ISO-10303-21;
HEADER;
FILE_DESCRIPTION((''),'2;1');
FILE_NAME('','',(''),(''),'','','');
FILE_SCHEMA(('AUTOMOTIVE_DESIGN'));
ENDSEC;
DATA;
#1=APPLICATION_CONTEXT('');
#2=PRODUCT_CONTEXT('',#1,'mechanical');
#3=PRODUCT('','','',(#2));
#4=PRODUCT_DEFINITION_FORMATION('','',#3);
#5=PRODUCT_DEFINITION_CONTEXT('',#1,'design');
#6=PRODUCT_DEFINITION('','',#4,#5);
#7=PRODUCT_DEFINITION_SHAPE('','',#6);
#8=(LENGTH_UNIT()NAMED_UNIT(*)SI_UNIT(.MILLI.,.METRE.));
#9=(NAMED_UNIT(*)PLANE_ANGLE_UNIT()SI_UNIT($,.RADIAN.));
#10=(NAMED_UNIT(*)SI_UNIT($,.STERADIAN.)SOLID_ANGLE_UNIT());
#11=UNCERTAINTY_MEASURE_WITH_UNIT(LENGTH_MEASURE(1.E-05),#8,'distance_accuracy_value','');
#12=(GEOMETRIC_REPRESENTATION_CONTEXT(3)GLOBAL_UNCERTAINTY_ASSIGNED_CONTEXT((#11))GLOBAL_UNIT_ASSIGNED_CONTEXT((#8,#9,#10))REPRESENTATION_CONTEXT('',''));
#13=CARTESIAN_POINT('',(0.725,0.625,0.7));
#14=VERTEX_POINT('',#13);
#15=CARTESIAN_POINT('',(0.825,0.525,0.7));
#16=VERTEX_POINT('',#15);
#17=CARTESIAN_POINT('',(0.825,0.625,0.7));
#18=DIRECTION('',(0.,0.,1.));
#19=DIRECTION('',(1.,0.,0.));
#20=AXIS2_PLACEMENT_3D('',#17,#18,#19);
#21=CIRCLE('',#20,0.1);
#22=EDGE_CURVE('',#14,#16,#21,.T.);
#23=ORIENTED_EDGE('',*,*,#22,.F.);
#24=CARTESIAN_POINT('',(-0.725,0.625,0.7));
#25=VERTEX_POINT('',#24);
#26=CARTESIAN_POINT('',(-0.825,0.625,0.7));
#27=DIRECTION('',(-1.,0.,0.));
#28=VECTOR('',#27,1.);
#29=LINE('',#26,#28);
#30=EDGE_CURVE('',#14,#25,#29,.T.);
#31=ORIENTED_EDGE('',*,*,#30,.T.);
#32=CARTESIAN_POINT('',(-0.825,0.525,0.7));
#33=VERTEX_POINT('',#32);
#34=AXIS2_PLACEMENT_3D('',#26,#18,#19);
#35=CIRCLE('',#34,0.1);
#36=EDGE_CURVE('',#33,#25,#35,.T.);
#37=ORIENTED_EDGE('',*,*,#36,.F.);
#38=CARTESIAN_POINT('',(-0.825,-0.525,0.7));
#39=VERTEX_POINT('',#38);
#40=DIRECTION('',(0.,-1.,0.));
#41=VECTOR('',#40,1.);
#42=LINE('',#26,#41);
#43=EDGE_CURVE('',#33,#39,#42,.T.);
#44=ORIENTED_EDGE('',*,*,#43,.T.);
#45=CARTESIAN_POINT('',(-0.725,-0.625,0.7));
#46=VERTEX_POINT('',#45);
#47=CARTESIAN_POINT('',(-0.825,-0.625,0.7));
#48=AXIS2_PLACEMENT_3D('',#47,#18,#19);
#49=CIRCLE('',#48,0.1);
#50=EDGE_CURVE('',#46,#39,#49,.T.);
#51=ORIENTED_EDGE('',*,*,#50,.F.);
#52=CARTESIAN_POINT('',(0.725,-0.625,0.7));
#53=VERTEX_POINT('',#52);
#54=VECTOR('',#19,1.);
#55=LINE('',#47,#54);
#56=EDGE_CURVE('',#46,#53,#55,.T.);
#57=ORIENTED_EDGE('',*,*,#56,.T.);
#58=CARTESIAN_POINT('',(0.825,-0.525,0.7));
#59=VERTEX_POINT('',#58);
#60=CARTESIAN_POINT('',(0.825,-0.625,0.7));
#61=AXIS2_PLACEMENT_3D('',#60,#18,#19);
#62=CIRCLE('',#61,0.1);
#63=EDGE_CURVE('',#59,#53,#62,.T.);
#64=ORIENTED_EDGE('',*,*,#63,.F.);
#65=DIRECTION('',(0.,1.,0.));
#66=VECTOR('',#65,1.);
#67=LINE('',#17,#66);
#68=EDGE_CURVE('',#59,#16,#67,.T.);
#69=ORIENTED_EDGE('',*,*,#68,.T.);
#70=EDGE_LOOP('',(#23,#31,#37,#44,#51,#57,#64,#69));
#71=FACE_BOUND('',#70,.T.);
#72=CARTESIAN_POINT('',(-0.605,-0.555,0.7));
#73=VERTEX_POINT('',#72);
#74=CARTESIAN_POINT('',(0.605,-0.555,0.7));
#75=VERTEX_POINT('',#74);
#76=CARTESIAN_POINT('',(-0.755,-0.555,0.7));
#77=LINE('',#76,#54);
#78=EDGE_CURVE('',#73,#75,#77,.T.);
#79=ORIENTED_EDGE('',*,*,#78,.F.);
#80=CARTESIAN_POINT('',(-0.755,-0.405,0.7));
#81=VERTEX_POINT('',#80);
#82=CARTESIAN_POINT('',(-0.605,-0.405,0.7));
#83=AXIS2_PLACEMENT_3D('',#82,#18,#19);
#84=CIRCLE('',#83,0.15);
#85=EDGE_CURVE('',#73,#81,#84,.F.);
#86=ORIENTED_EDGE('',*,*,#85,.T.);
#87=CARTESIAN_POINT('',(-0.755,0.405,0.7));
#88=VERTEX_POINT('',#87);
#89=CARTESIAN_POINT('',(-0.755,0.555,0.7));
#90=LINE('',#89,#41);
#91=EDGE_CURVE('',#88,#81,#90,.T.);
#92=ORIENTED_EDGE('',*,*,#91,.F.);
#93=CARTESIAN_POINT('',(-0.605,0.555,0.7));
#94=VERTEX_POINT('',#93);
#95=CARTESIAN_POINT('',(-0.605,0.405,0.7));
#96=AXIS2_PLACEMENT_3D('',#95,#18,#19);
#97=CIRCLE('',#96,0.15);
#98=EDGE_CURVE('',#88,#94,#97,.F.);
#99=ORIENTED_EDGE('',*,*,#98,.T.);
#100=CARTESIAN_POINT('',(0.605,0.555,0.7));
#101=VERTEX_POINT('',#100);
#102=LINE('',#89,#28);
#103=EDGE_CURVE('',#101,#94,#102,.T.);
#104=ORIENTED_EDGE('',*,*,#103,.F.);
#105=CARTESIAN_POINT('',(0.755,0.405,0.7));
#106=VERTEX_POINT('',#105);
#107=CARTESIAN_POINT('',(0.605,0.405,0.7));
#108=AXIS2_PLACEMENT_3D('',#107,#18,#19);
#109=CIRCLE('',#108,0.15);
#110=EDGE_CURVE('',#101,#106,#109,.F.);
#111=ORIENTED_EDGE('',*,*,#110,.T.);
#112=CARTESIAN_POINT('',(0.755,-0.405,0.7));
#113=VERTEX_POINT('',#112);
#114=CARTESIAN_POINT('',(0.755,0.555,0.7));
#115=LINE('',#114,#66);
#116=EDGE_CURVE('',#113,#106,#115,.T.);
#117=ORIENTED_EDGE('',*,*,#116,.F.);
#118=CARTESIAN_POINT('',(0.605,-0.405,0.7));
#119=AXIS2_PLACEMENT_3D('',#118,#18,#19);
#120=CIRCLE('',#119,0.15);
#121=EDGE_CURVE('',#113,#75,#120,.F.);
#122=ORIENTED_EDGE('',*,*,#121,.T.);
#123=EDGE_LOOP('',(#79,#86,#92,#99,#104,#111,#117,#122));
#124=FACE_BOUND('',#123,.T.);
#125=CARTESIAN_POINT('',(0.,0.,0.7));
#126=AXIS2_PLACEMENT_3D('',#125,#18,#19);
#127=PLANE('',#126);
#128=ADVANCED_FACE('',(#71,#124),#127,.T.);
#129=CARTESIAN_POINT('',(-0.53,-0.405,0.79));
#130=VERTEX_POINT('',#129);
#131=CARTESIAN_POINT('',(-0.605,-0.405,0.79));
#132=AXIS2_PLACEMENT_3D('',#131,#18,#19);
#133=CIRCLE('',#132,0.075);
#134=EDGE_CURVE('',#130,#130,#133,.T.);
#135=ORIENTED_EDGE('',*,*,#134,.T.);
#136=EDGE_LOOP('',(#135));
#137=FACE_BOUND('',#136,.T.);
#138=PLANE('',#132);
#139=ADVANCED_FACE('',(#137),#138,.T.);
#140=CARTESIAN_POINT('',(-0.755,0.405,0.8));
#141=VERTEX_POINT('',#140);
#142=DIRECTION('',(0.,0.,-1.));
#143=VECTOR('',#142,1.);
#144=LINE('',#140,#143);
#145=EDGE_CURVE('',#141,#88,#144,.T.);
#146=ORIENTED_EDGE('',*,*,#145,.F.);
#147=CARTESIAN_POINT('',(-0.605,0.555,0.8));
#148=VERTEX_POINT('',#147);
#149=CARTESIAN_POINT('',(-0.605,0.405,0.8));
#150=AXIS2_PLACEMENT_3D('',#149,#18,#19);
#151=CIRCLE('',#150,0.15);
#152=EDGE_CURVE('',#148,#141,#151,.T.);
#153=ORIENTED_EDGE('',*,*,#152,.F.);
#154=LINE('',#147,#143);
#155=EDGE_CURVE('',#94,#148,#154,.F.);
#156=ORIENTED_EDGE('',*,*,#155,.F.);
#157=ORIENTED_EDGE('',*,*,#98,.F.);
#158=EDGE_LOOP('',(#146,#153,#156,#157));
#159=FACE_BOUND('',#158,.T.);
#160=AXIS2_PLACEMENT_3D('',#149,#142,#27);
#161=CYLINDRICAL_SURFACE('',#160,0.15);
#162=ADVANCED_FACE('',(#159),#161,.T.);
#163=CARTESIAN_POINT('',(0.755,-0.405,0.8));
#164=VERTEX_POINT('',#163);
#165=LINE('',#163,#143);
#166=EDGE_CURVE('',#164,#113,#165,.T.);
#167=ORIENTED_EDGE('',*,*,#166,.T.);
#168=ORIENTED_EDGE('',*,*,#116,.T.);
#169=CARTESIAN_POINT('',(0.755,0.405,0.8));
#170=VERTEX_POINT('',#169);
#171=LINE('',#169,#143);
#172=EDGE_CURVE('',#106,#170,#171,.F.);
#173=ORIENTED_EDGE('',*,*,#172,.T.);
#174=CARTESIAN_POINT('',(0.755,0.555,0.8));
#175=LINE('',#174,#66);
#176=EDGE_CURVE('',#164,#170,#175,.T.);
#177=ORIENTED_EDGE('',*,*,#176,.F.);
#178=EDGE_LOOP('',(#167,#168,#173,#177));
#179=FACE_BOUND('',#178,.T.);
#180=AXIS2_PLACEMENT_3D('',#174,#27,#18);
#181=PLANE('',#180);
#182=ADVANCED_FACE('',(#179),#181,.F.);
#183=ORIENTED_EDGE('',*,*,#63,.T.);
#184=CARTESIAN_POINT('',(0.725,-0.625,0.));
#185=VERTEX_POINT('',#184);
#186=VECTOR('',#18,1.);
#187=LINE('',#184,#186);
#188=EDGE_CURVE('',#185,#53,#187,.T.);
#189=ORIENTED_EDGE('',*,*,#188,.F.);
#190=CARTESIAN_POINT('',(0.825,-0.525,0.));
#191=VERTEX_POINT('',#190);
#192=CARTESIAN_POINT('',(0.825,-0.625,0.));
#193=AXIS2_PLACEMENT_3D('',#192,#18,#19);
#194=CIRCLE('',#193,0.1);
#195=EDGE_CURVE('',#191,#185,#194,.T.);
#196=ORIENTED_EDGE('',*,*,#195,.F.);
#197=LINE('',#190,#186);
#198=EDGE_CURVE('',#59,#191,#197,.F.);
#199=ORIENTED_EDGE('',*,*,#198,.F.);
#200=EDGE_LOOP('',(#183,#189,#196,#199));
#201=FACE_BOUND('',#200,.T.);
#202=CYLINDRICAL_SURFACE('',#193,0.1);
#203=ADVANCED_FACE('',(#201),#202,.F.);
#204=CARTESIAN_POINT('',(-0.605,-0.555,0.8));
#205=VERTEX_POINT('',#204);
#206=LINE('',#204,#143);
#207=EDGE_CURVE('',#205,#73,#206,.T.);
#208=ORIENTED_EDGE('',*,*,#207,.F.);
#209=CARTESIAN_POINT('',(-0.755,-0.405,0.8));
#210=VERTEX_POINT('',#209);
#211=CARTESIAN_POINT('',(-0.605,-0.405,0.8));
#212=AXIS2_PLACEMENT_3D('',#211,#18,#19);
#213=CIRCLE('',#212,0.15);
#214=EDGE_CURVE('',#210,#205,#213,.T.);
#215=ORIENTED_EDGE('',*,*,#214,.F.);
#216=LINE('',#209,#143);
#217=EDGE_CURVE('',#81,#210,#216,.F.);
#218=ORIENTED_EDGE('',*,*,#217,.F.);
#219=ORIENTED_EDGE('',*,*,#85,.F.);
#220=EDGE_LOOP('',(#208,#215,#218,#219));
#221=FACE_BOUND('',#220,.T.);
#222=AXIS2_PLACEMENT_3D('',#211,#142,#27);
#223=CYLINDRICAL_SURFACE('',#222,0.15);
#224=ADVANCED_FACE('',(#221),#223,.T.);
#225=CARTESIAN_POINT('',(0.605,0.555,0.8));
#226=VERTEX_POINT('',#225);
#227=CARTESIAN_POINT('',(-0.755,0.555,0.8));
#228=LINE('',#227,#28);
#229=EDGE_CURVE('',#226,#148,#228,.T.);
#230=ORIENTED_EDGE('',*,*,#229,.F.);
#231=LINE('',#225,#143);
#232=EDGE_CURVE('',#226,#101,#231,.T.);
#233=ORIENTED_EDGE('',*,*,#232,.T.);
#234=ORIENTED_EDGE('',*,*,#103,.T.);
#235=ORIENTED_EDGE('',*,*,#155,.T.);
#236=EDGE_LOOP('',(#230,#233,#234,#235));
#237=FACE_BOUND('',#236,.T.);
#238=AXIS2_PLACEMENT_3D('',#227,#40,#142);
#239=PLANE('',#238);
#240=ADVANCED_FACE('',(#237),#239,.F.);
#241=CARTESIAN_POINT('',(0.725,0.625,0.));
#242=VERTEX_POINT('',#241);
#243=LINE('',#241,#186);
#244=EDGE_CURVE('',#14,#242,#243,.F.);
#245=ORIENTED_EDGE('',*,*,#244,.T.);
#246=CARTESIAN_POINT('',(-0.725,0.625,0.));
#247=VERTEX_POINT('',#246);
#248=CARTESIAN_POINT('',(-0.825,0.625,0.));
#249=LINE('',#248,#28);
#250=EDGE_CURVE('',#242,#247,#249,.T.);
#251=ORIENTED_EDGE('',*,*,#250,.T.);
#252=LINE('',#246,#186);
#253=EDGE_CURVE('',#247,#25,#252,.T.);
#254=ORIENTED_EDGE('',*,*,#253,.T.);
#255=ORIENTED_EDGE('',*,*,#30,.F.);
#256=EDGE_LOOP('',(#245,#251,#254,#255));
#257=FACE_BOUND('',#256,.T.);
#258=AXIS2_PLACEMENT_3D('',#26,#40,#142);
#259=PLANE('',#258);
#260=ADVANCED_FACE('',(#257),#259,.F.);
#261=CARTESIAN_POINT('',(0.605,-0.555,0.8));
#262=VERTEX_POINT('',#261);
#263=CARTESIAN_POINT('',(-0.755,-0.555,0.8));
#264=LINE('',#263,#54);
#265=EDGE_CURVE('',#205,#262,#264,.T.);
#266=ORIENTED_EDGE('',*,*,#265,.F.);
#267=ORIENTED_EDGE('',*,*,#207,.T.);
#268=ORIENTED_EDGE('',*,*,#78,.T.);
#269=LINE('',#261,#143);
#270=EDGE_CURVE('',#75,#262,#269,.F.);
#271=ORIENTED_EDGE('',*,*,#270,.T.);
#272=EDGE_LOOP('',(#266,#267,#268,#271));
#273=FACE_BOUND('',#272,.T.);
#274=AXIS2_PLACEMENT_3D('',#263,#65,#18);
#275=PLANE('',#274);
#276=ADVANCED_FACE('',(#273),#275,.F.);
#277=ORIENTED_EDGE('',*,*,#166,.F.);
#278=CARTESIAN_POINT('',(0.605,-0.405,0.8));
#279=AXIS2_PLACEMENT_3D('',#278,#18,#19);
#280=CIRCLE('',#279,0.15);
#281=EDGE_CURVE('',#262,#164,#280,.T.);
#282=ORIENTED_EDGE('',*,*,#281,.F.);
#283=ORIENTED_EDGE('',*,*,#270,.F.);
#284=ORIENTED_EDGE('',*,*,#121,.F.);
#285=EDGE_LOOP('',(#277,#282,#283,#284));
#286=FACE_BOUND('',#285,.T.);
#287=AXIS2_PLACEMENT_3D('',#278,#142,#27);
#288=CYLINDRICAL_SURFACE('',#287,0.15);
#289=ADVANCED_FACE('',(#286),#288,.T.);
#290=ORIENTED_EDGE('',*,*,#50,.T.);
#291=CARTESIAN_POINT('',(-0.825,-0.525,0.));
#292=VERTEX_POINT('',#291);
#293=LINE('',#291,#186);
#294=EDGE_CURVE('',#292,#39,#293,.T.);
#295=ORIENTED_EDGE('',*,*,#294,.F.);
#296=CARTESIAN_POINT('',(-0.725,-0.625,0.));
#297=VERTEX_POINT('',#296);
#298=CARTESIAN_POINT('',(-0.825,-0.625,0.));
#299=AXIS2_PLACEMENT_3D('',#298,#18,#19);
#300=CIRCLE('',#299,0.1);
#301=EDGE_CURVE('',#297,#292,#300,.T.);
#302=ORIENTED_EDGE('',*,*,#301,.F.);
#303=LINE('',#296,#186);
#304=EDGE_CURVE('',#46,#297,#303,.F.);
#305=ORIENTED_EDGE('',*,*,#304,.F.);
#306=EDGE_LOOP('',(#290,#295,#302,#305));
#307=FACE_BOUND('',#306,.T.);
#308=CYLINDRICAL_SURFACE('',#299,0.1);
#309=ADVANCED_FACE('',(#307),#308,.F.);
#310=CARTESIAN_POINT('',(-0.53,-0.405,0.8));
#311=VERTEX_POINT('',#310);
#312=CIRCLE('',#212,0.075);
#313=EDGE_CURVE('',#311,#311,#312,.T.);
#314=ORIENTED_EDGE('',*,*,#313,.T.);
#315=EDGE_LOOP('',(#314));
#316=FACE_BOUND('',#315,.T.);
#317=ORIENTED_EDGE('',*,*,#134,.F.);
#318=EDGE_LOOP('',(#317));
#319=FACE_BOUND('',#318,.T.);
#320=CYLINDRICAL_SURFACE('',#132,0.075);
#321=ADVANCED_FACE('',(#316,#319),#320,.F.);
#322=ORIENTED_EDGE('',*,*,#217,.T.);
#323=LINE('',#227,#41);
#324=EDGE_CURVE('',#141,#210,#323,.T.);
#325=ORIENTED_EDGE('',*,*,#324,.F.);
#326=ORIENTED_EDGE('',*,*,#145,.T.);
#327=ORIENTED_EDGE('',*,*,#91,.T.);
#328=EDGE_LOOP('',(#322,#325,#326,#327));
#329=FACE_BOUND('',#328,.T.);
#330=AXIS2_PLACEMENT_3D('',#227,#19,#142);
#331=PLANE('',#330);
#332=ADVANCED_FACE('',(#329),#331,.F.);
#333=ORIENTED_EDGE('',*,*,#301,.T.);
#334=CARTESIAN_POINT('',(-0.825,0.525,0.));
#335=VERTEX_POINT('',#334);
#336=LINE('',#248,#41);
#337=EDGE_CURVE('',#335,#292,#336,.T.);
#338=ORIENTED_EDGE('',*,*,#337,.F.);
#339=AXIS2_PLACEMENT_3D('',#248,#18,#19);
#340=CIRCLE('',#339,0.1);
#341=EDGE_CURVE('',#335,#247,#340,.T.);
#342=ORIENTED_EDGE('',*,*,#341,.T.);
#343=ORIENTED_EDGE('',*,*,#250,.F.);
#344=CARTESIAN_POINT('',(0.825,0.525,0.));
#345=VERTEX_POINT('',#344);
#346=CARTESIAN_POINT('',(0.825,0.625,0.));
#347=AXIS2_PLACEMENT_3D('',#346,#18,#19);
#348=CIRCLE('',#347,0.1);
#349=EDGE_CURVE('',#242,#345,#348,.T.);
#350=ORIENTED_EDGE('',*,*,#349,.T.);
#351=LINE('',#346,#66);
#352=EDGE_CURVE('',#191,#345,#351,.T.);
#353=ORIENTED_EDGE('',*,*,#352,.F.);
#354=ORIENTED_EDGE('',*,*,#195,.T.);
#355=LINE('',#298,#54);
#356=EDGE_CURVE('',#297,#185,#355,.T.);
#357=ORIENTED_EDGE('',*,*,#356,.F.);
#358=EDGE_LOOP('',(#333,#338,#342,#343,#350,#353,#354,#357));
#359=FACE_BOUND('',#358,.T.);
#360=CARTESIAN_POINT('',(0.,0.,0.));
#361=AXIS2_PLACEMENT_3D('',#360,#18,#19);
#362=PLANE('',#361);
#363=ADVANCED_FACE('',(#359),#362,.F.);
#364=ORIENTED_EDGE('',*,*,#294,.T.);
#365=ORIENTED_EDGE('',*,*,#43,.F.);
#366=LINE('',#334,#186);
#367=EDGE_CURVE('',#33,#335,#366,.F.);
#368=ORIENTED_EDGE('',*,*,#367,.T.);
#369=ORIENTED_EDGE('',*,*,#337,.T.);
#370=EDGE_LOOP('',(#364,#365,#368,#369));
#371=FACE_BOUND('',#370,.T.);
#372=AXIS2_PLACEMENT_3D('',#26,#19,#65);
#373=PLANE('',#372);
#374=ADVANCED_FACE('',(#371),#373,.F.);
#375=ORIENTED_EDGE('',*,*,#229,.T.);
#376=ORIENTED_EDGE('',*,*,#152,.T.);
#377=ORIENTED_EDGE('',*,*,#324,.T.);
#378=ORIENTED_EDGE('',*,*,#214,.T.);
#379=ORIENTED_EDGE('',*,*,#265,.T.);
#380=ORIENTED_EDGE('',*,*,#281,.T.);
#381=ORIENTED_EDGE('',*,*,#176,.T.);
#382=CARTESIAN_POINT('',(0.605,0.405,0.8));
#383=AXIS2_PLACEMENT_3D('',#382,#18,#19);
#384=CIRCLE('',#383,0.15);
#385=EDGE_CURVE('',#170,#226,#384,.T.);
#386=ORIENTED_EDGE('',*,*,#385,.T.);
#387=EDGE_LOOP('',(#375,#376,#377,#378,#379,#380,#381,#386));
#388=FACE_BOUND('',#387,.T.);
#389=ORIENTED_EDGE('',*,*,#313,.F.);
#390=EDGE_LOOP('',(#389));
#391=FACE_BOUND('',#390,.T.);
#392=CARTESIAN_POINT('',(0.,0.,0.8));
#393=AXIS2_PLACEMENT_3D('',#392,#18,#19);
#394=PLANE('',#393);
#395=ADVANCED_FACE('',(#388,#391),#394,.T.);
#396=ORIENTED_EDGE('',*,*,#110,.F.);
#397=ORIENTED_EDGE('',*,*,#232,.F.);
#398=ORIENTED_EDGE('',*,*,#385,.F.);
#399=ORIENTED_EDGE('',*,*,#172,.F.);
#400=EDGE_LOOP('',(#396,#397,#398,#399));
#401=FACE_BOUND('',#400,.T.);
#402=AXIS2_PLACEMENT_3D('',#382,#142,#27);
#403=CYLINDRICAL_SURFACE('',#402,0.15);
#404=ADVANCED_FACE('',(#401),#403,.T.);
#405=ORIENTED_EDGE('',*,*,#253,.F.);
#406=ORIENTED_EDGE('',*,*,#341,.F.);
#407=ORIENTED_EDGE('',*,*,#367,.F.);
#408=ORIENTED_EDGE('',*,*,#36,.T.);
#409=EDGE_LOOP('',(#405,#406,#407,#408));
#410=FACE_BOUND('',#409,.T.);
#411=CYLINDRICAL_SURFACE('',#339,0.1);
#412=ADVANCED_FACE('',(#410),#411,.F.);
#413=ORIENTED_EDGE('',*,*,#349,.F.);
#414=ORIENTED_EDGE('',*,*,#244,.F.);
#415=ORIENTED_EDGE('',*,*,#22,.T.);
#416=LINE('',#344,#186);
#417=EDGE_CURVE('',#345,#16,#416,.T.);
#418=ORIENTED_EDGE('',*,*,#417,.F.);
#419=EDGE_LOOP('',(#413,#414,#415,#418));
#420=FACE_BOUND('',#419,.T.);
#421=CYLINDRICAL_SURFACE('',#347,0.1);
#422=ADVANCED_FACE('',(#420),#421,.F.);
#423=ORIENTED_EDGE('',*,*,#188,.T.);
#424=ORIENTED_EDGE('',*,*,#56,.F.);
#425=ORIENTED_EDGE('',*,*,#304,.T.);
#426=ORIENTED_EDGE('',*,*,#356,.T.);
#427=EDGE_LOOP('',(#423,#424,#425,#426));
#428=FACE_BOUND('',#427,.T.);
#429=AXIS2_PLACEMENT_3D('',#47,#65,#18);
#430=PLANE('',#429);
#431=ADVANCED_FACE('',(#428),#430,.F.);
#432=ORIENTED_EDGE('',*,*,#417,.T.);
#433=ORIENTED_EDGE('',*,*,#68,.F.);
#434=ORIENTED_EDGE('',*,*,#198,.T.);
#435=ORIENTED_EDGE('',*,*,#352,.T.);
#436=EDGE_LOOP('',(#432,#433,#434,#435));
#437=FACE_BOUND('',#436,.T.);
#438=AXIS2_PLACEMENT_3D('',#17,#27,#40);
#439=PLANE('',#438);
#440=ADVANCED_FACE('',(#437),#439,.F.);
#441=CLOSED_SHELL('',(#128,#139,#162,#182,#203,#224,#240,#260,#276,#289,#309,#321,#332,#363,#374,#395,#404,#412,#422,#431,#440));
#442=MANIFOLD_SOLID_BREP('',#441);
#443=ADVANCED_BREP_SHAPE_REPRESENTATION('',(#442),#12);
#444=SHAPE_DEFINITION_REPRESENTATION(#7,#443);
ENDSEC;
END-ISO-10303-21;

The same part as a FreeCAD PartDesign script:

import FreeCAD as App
import Part
import Sketcher
from FreeCAD import Vector


def edges_at(feature, points):
    """Names of the edges that pass closest to the given points."""
    edges = feature.Shape.Edges
    near = lambda p: min(range(len(edges)), key=lambda i: edges[i].distToShape(Part.Vertex(*p))[0])
    return sorted({f"Edge{near(p) + 1}" for p in points})


def add_polygon(sketch, points):
    """Adds a closed chain of lines whose ends are joined by coincident constraints."""
    first, n = sketch.GeometryCount, len(points)
    for a, b in zip(points, points[1:] + points[:1]):
        sketch.addGeometry(Part.LineSegment(App.Vector(*a, 0), App.Vector(*b, 0)), False)
    for i in range(n):
        sketch.addConstraint(Sketcher.Constraint("Coincident", first + i, 2, first + (i + 1) % n, 1))

doc = App.newDocument("Part")
params = doc.addObject("Spreadsheet::Sheet", "Params")
for row, (alias, value) in enumerate([
    ("sketch1_width", "1.65 mm"),
    ("sketch1_height", "1.25 mm"),
    ("pad1_length", "0.7 mm"),
    ("sketch2_width", "1.51 mm"),
    ("sketch2_height", "1.11 mm"),
    ("pad2_length", "0.1 mm"),
    ("fillet_radius", "0.15 mm"),
    ("sketch3_diameter", "0.2 mm"),
    ("sketch4_diameter", "0.15 mm"),
    ("pocket2_length", "0.01 mm"),
], start=1):
    params.set(f"A{row}", alias)
    params.set(f"B{row}", "=" + value)
    params.setAlias(f"B{row}", alias)

body = doc.addObject("PartDesign::Body", "Body")

# Sketch on XY plane
sketch1 = body.newObject("Sketcher::SketchObject", "Sketch")
sketch1.AttachmentSupport = (doc.getObject("XY_Plane"), [""])
sketch1.MapMode = "FlatFace"
add_polygon(sketch1, [(-0.8, 0.6), (-0.8, -0.6), (0.8, -0.6), (0.8, 0.6)])  # lines 0-3
sketch1.addConstraint([
    Sketcher.Constraint("Vertical", 0),
    Sketcher.Constraint("Horizontal", 1),
    Sketcher.Constraint("Vertical", 2),
    Sketcher.Constraint("Horizontal", 3),
    Sketcher.Constraint("Symmetric", 0, 2, 2, 2, -1, 1),
    Sketcher.Constraint("DistanceX", 1, 1, 1, 2, 1.65),
    Sketcher.Constraint("DistanceY", 0, 2, 0, 1, 1.25),
])
sketch1.setExpression("Constraints[9]", "Params.sketch1_width")
sketch1.setExpression("Constraints[10]", "Params.sketch1_height")
pad1 = body.newObject("PartDesign::Pad", "Pad")
pad1.Profile = sketch1
pad1.setExpression("Length", "Params.pad1_length")

# Sketch on XY plane
sketch2 = body.newObject("Sketcher::SketchObject", "Sketch001")
sketch2.AttachmentSupport = (doc.getObject("XY_Plane"), [""])
sketch2.MapMode = "FlatFace"
sketch2.AttachmentOffset = App.Placement(Vector(0, 0, 0.7), App.Rotation())
add_polygon(sketch2, [(-0.8, 0.6), (-0.8, -0.6), (0.8, -0.6), (0.8, 0.6)])  # lines 0-3
sketch2.addConstraint([
    Sketcher.Constraint("Vertical", 0),
    Sketcher.Constraint("Horizontal", 1),
    Sketcher.Constraint("Vertical", 2),
    Sketcher.Constraint("Horizontal", 3),
    Sketcher.Constraint("Symmetric", 0, 2, 2, 2, -1, 1),
    Sketcher.Constraint("DistanceX", 1, 1, 1, 2, 1.51),
    Sketcher.Constraint("DistanceY", 0, 2, 0, 1, 1.11),
])
sketch2.setExpression("Constraints[9]", "Params.sketch2_width")
sketch2.setExpression("Constraints[10]", "Params.sketch2_height")
pad2 = body.newObject("PartDesign::Pad", "Pad001")
pad2.Profile = sketch2
pad2.setExpression("Length", "Params.pad2_length")
doc.recompute()

fillet = body.newObject("PartDesign::Fillet", "Fillet")
fillet.Base = (pad2, edges_at(pad2, [
    (0.755, -0.555, 0.75),
    (0.755, 0.555, 0.75),
    (-0.755, 0.555, 0.75),
    (-0.755, -0.555, 0.75),
]))
fillet.setExpression("Radius", "Params.fillet_radius")

# Sketch on XY plane
sketch3 = body.newObject("Sketcher::SketchObject", "Sketch002")
sketch3.AttachmentSupport = (doc.getObject("XY_Plane"), [""])
sketch3.MapMode = "FlatFace"
sketch3.AttachmentOffset = App.Placement(Vector(0, 0, 0.7), App.Rotation())
sketch3.addGeometry([
    Part.Circle(Vector(-0.82, 0.62, 0), Vector(0, 0, 1), 0.1),
    Part.Circle(Vector(0.82, 0.62, 0), Vector(0, 0, 1), 0.1),
    Part.Circle(Vector(0.82, -0.62, 0), Vector(0, 0, 1), 0.1),
    Part.Circle(Vector(-0.82, -0.62, 0), Vector(0, 0, 1), 0.1),
], False)
sketch3.addConstraint([
    Sketcher.Constraint("Equal", 0, 1),
    Sketcher.Constraint("Equal", 1, 2),
    Sketcher.Constraint("Equal", 2, 3),
    Sketcher.Constraint("Symmetric", 0, 3, 2, 3, -1, 1),
    Sketcher.Constraint("Symmetric", 1, 3, 3, 3, -1, 1),
    Sketcher.Constraint("Symmetric", 0, 3, 1, 3, -2),
    Sketcher.Constraint("Diameter", 0, 0.2),
    Sketcher.Constraint("DistanceX", 0, 3, 1, 3, 1.65),
    Sketcher.Constraint("DistanceY", 2, 3, 1, 3, 1.25),
])
sketch3.setExpression("Constraints[6]", "Params.sketch3_diameter")
pocket1 = body.newObject("PartDesign::Pocket", "Pocket")
pocket1.Profile = sketch3
pocket1.Type = "ThroughAll"

# Sketch on XY plane
sketch4 = body.newObject("Sketcher::SketchObject", "Sketch003")
sketch4.AttachmentSupport = (doc.getObject("XY_Plane"), [""])
sketch4.MapMode = "FlatFace"
sketch4.AttachmentOffset = App.Placement(Vector(0, 0, 0.8), App.Rotation())
sketch4.addGeometry(Part.Circle(Vector(-0.6, -0.41, 0), Vector(0, 0, 1), 0.07), False)
sketch4.addConstraint([
    Sketcher.Constraint("Diameter", 0, 0.15),
    Sketcher.Constraint("DistanceX", 0, 3, -1, 1, 0.605),
    Sketcher.Constraint("DistanceY", 0, 3, -1, 1, 0.405),
])
sketch4.setExpression("Constraints[0]", "Params.sketch4_diameter")
pocket2 = body.newObject("PartDesign::Pocket", "Pocket001")
pocket2.Profile = sketch4
pocket2.setExpression("Length", "Params.pocket2_length")

doc.recompute()
